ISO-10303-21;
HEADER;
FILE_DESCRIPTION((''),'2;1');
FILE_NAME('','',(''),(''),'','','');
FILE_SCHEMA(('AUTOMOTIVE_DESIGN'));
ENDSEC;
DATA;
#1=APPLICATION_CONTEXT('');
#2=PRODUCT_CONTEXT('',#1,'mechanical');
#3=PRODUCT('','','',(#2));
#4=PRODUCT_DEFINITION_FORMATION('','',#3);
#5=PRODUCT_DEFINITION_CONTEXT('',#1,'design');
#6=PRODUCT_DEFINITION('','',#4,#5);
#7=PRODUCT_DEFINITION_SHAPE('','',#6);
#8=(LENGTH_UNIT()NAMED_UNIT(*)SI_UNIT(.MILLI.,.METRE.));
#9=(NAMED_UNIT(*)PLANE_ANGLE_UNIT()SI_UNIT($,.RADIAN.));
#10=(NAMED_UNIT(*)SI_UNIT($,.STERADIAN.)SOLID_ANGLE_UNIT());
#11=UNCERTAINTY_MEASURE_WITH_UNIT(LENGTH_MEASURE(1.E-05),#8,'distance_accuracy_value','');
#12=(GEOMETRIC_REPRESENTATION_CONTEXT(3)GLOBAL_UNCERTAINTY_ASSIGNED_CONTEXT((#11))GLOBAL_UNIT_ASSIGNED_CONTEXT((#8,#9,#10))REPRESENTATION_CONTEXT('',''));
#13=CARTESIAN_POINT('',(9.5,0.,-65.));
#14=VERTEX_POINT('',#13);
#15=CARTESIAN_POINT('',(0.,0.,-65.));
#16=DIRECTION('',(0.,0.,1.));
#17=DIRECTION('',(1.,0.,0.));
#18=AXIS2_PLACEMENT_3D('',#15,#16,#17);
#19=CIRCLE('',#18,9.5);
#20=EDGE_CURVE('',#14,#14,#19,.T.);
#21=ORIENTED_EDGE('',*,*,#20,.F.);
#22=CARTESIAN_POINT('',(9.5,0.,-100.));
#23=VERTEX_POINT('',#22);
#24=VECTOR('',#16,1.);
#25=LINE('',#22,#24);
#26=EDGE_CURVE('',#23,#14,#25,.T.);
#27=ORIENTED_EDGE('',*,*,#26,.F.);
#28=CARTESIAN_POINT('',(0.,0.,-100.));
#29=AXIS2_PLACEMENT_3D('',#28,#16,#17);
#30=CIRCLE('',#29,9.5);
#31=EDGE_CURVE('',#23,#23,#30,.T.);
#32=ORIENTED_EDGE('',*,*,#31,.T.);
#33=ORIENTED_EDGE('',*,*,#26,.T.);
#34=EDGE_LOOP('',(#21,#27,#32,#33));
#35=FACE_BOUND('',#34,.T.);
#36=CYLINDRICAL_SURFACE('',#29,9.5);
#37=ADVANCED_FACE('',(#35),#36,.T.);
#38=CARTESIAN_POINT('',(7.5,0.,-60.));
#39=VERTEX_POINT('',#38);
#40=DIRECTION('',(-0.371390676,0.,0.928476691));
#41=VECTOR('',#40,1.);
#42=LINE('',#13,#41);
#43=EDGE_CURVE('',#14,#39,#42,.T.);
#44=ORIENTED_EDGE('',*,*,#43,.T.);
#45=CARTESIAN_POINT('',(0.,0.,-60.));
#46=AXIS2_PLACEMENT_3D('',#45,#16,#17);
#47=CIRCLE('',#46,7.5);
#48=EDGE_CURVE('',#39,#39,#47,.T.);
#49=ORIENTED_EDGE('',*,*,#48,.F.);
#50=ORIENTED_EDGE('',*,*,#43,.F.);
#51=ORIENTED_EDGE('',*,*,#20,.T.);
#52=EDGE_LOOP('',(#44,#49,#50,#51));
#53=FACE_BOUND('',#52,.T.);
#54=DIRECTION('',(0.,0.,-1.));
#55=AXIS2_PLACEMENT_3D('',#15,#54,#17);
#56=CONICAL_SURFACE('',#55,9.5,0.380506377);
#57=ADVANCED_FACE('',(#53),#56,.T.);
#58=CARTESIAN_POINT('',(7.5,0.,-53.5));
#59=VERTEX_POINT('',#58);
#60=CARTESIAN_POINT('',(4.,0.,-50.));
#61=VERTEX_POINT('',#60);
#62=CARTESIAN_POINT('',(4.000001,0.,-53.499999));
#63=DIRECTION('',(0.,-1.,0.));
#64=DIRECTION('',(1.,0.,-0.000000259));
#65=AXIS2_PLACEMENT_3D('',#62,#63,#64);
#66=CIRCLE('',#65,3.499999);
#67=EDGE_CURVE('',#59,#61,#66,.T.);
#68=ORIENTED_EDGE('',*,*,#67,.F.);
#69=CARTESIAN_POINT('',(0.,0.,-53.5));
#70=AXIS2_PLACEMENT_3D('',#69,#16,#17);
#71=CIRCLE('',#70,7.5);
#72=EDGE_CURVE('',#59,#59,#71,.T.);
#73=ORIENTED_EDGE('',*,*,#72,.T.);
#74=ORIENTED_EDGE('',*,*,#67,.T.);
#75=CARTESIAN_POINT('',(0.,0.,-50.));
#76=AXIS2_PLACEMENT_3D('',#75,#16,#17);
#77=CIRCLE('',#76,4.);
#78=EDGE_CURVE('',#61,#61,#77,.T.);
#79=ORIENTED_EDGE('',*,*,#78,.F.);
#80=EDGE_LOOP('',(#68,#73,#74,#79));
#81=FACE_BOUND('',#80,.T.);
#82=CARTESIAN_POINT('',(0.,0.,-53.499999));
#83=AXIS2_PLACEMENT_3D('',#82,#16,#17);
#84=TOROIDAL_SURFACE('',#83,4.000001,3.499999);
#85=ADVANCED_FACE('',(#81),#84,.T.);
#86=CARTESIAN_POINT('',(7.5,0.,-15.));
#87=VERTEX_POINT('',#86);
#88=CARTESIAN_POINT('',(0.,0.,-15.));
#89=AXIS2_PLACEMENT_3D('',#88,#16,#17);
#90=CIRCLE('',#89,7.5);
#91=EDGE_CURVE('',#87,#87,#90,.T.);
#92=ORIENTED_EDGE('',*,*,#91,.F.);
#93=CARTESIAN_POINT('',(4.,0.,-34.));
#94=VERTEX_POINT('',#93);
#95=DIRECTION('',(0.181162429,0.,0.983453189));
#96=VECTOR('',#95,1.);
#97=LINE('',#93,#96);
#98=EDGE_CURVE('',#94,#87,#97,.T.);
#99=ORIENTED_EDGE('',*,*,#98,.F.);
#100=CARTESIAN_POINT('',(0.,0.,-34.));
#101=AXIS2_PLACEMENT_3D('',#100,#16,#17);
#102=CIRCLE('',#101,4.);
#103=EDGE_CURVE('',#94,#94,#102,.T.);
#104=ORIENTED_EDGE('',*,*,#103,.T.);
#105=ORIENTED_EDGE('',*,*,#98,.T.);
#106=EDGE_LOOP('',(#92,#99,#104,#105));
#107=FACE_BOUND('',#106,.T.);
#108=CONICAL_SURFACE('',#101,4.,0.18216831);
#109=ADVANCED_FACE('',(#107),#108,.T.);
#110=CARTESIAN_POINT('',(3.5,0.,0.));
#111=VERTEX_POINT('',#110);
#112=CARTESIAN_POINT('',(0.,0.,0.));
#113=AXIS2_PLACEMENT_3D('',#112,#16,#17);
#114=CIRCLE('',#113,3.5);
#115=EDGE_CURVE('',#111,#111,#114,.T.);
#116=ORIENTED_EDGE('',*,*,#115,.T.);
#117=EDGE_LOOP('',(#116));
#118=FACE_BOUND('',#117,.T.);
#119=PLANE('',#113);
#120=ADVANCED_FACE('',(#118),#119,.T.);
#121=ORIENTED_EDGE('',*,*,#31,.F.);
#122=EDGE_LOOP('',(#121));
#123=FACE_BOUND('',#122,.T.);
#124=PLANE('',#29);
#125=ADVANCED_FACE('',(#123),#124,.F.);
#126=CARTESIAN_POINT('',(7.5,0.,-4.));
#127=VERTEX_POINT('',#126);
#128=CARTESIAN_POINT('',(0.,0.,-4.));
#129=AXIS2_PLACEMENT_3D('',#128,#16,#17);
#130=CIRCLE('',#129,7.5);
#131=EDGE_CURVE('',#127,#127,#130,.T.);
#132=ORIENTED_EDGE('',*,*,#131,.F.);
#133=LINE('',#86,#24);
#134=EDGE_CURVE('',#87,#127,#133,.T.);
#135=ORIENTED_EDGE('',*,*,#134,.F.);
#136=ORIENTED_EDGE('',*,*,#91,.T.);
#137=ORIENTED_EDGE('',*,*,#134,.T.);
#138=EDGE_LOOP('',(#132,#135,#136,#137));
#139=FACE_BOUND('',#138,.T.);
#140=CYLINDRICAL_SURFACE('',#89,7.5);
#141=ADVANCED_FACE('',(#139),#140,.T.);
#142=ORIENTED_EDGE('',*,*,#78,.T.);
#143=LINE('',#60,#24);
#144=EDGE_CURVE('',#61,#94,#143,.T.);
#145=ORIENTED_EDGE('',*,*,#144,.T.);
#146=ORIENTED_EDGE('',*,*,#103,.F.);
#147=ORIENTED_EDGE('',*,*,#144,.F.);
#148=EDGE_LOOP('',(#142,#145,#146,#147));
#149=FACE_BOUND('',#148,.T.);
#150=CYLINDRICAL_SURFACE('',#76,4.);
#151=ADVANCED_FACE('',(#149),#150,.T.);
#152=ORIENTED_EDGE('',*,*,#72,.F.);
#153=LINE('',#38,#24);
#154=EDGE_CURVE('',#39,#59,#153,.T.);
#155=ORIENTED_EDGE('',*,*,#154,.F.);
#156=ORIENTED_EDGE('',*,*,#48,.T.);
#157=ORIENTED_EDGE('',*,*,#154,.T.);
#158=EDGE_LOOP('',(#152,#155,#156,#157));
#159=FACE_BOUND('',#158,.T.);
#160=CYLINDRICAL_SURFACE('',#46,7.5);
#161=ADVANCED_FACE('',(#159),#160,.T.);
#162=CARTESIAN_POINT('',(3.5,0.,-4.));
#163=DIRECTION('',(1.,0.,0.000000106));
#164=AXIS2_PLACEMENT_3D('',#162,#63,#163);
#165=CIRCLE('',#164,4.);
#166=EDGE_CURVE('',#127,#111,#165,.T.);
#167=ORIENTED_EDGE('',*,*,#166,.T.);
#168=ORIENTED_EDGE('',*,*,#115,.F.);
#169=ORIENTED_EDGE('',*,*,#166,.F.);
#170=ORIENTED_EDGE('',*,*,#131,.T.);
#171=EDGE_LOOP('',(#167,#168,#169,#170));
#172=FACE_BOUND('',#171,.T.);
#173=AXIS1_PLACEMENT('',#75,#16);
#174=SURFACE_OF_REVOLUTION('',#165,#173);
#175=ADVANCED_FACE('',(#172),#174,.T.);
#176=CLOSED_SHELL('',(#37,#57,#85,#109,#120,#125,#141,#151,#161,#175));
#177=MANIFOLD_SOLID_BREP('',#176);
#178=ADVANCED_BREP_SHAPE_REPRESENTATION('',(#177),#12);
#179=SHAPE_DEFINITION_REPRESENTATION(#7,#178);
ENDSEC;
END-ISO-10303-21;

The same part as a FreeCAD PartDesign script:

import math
import FreeCAD as App
import Part
import Sketcher

doc = App.newDocument("Part")
body = doc.addObject("PartDesign::Body", "Body")

# Sketch on XZ plane
sketch1 = body.newObject("Sketcher::SketchObject", "Sketch")
sketch1.AttachmentSupport = (doc.getObject("XZ_Plane"), [""])
sketch1.MapMode = "FlatFace"
sketch1.addGeometry(Part.LineSegment(App.Vector(7.5, -15, 0), App.Vector(7.5, -4, 0)), False)
sketch1.addGeometry(Part.ArcOfCircle(Part.Circle(App.Vector(3.5, -4, 0), App.Vector(0, 0, 1), 4), math.radians(0), math.radians(90)), False)
sketch1.addGeometry(Part.LineSegment(App.Vector(3.5, 0, 0), App.Vector(0, 0, 0)), False)
sketch1.addGeometry(Part.LineSegment(App.Vector(0, 0, 0), App.Vector(0, -100, 0)), False)
sketch1.addGeometry(Part.LineSegment(App.Vector(0, -100, 0), App.Vector(9.5, -100, 0)), False)
sketch1.addGeometry(Part.LineSegment(App.Vector(9.5, -100, 0), App.Vector(9.5, -65, 0)), False)
sketch1.addGeometry(Part.LineSegment(App.Vector(9.5, -65, 0), App.Vector(7.5, -60, 0)), False)
sketch1.addGeometry(Part.LineSegment(App.Vector(7.5, -60, 0), App.Vector(7.5, -53.5, 0)), False)
sketch1.addGeometry(Part.ArcOfCircle(Part.Circle(App.Vector(4, -53.5, 0), App.Vector(0, 0, 1), 3.5), math.radians(0), math.radians(90)), False)
sketch1.addGeometry(Part.LineSegment(App.Vector(4, -50, 0), App.Vector(4, -34, 0)), False)
sketch1.addGeometry(Part.LineSegment(App.Vector(4, -34, 0), App.Vector(7.5, -15, 0)), False)
sketch1.addConstraint(Sketcher.Constraint("Tangent", 0, 2, 1, 1))
sketch1.addConstraint(Sketcher.Constraint("Tangent", 1, 2, 2, 1))
sketch1.addConstraint(Sketcher.Constraint("Coincident", 2, 2, 3, 1))
sketch1.addConstraint(Sketcher.Constraint("Coincident", 3, 2, 4, 1))
sketch1.addConstraint(Sketcher.Constraint("Coincident", 4, 2, 5, 1))
sketch1.addConstraint(Sketcher.Constraint("Coincident", 5, 2, 6, 1))
sketch1.addConstraint(Sketcher.Constraint("Coincident", 6, 2, 7, 1))
sketch1.addConstraint(Sketcher.Constraint("Tangent", 7, 2, 8, 1))
sketch1.addConstraint(Sketcher.Constraint("Coincident", 8, 2, 9, 1))
sketch1.addConstraint(Sketcher.Constraint("Coincident", 9, 2, 10, 1))
sketch1.addConstraint(Sketcher.Constraint("Coincident", 10, 2, 0, 1))
sketch1.addConstraint(Sketcher.Constraint("Vertical", 0))
sketch1.addConstraint(Sketcher.Constraint("Horizontal", 2))
sketch1.addConstraint(Sketcher.Constraint("Vertical", 3))
sketch1.addConstraint(Sketcher.Constraint("Horizontal", 4))
sketch1.addConstraint(Sketcher.Constraint("Vertical", 5))
sketch1.addConstraint(Sketcher.Constraint("Vertical", 7))
sketch1.addConstraint(Sketcher.Constraint("Vertical", 9))
sketch1.addConstraint(Sketcher.Constraint("Coincident", 2, 2, -1, 1))
sketch1.addConstraint(Sketcher.Constraint("Vertical", 0, 2, 6, 2))
sketch1.addConstraint(Sketcher.Constraint("Radius", 1, 4.0))
sketch1.addConstraint(Sketcher.Constraint("Radius", 8, 3.499999))
sketch1.addConstraint(Sketcher.Constraint("DistanceY", 0, 1, 0, 2, 11.0))
sketch1.addConstraint(Sketcher.Constraint("DistanceY", 3, 2, 3, 1, 100.0))
sketch1.addConstraint(Sketcher.Constraint("DistanceY", 5, 1, 5, 2, 35.0))
sketch1.addConstraint(Sketcher.Constraint("DistanceY", 9, 1, 9, 2, 16.0))
sketch1.addConstraint(Sketcher.Constraint("DistanceX", 2, 2, 2, 1, 3.5))
sketch1.addConstraint(Sketcher.Constraint("DistanceX", 4, 1, 4, 2, 9.5))
sketch1.addConstraint(Sketcher.Constraint("DistanceY", 7, 1, 7, 2, 6.5))
sketch1.addConstraint(Sketcher.Constraint("DistanceY", 6, 2, -1, 1, 60.0))
sketch1.addConstraint(Sketcher.Constraint("DistanceX", -1, 1, 8, 2, 4.0))
revolution = body.newObject("PartDesign::Revolution", "Revolution")
revolution.Profile = sketch1
revolution.ReferenceAxis = (sketch1, ["V_Axis"])
revolution.Angle = 360

doc.recompute()
